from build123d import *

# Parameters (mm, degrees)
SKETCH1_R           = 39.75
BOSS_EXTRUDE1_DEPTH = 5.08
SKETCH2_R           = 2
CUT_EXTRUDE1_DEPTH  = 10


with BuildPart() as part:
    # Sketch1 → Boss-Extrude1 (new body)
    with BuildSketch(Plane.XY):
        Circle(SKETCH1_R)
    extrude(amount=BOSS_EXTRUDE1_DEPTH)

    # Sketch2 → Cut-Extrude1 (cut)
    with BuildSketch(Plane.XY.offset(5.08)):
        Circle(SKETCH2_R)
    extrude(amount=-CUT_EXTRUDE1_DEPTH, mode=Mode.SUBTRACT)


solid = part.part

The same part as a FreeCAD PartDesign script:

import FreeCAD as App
import Part
import Sketcher

doc = App.newDocument("Part")
body = doc.addObject("PartDesign::Body", "Body")

# Sketch on XY plane
sketch1 = doc.addObject("Sketcher::SketchObject", "Sketch")
body.addObject(sketch1)
sketch1.AttachmentSupport = (doc.XY_Plane, [""])
sketch1.MapMode = "FlatFace"
sketch1.addGeometry(Part.Circle(App.Vector(0, 0, 0), App.Vector(0, 0, 1), 39.75), False)
sketch1.addConstraint([
    Sketcher.Constraint("Coincident", 0, 3, -1, 1),
    Sketcher.Constraint("Diameter", 0, 79.5),
])
pad1 = doc.addObject("PartDesign::Pad", "Pad")
body.addObject(pad1)
pad1.Profile = sketch1
pad1.Length = 5.08

# Sketch on XY plane
sketch2 = doc.addObject("Sketcher::SketchObject", "Sketch001")
body.addObject(sketch2)
sketch2.AttachmentSupport = (doc.XY_Plane, [""])
sketch2.MapMode = "FlatFace"
sketch2.AttachmentOffset = App.Placement(App.Vector(0, 0, 5.08), App.Rotation())
sketch2.addGeometry(Part.Circle(App.Vector(0, 0, 0), App.Vector(0, 0, 1), 2), False)
sketch2.addConstraint([
    Sketcher.Constraint("Coincident", 0, 3, -1, 1),
    Sketcher.Constraint("Diameter", 0, 4.0),
])
pocket1 = doc.addObject("PartDesign::Pocket", "Pocket")
body.addObject(pocket1)
pocket1.Profile = sketch2
pocket1.Length = 10

doc.recompute()
